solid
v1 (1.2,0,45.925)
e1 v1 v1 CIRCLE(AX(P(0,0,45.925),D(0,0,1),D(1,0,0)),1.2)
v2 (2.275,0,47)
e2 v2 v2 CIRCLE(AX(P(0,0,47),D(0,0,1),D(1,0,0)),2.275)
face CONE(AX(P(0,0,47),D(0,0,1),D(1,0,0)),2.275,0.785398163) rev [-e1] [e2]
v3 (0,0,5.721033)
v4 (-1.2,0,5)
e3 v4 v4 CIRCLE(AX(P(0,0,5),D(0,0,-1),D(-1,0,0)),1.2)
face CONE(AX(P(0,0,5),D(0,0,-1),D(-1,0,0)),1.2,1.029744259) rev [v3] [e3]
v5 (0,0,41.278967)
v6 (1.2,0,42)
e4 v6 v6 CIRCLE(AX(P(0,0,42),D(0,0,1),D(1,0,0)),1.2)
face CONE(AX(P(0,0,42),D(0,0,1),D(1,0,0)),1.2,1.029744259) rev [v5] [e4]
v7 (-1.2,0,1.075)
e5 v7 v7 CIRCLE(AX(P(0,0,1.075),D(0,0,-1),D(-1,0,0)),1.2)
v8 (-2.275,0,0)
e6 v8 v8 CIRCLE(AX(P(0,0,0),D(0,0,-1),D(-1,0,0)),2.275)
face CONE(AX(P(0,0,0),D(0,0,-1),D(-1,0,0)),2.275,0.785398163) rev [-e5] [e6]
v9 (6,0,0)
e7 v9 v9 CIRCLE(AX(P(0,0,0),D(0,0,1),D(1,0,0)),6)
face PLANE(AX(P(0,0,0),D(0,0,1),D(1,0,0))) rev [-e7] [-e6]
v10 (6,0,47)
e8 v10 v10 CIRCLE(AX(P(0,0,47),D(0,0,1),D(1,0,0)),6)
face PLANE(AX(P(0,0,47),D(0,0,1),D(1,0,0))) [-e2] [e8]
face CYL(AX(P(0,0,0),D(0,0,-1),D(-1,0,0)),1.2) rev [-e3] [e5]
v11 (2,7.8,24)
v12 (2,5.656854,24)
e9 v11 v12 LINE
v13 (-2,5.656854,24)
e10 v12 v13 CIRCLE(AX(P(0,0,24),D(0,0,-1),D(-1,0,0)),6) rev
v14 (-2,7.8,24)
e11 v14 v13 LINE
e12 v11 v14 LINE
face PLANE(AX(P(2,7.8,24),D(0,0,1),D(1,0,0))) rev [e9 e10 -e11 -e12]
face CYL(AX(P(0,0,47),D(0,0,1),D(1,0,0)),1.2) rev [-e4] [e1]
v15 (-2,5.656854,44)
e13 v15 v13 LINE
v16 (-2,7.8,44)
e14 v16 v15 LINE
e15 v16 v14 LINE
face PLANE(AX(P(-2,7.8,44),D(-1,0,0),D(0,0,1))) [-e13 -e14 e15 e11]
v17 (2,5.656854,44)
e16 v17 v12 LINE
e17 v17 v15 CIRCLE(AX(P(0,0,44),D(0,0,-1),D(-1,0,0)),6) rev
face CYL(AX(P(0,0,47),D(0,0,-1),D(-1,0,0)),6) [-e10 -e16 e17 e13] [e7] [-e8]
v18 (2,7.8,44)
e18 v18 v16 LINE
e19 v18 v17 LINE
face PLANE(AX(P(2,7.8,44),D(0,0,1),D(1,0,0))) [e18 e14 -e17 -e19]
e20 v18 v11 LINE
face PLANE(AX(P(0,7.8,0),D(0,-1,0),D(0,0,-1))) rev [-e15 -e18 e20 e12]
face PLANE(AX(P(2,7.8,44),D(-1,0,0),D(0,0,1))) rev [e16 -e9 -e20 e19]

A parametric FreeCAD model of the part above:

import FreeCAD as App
import Part
import Sketcher
Q = App.Units.Quantity


def add_polygon(sketch, points):
    """Adds a closed chain of lines whose ends are joined by coincident constraints."""
    first, n = sketch.GeometryCount, len(points)
    for a, b in zip(points, points[1:] + points[:1]):
        sketch.addGeometry(Part.LineSegment(App.Vector(*a, 0), App.Vector(*b, 0)), False)
    for i in range(n):
        sketch.addConstraint(Sketcher.Constraint("Coincident", first + i, 2, first + (i + 1) % n, 1))

doc = App.newDocument("Part")
body = doc.addObject("PartDesign::Body", "Body")

# Sketch on XY plane
sketch1 = body.newObject("Sketcher::SketchObject", "Sketch")
sketch1.AttachmentSupport = (doc.getObject("XY_Plane"), [""])
sketch1.MapMode = "FlatFace"
sketch1.addGeometry(Part.Circle(App.Vector(0, 0, 0), App.Vector(0, 0, 1), 6), False)
sketch1.addConstraint([
    Sketcher.Constraint("Coincident", 0, 3, -1, 1),
    Sketcher.Constraint("Diameter", 0, Q("12 mm")),
])
pad1 = body.newObject("PartDesign::Pad", "Pad")
pad1.Profile = sketch1
pad1.Length = 47

# Sketch on XZ plane
sketch2 = body.newObject("Sketcher::SketchObject", "Sketch001")
sketch2.AttachmentSupport = (doc.getObject("XZ_Plane"), [""])
sketch2.MapMode = "FlatFace"
sketch2.AttachmentOffset = App.Placement(App.Vector(0, 0, -6), App.Rotation())
add_polygon(sketch2, [(-2, 44), (2, 44), (2, 24), (-2, 24)])  # lines 0-3
sketch2.addConstraint([
    Sketcher.Constraint("Horizontal", 0),
    Sketcher.Constraint("Vertical", 1),
    Sketcher.Constraint("Horizontal", 2),
    Sketcher.Constraint("Vertical", 3),
    Sketcher.Constraint("DistanceX", 0, 1, 0, 2, Q("4 mm")),
    Sketcher.Constraint("DistanceY", 1, 2, 1, 1, Q("20 mm")),
    Sketcher.Constraint("DistanceX", -1, 1, 0, 2, Q("2 mm")),
    Sketcher.Constraint("DistanceY", -1, 1, 0, 2, Q("44 mm")),
])
pad2 = body.newObject("PartDesign::Pad", "Pad001")
pad2.Profile = sketch2
pad2.Type = "TwoLengths"
pad2.Length = 1.8
pad2.Length2 = 1.8
pad2.Reversed = True

# Sketch on XY plane
sketch3 = body.newObject("Sketcher::SketchObject", "Sketch002")
sketch3.AttachmentSupport = (doc.getObject("XY_Plane"), [""])
sketch3.MapMode = "FlatFace"
sketch3.AttachmentOffset = App.Placement(App.Vector(0, 0, 47), App.Rotation())
sketch3.addGeometry(Part.Circle(App.Vector(0, 0, 0), App.Vector(0, 0, 1), 1.2), False)
sketch3.addConstraint([
    Sketcher.Constraint("Coincident", 0, 3, -1, 1),
    Sketcher.Constraint("Diameter", 0, Q("2.4 mm")),
])
doc.recompute()
hole = body.newObject("PartDesign::Hole", "Hole")
hole.Profile = sketch3
hole.ThreadType = "None"
hole.Diameter = 2.4
hole.DepthType = "Dimension"
hole.Depth = 5
hole.DrillPoint = "Angled"
hole.DrillPointAngle = 118
hole.HoleCutType = "Countersink"
hole.HoleCutDiameter = 4.55
hole.HoleCutCountersinkAngle = 90

# Sketch on XY plane
sketch4 = body.newObject("Sketcher::SketchObject", "Sketch003")
sketch4.AttachmentSupport = (doc.getObject("XY_Plane"), [""])
sketch4.MapMode = "FlatFace"
sketch4.addGeometry(Part.Circle(App.Vector(0, 0, 0), App.Vector(0, 0, 1), 1.2), False)
sketch4.addConstraint([
    Sketcher.Constraint("Coincident", 0, 3, -1, 1),
    Sketcher.Constraint("Diameter", 0, Q("2.4 mm")),
])
doc.recompute()
hole2 = body.newObject("PartDesign::Hole", "Hole001")
hole2.Profile = sketch4
hole2.ThreadType = "None"
hole2.Diameter = 2.4
hole2.DepthType = "Dimension"
hole2.Depth = 5
hole2.DrillPoint = "Angled"
hole2.DrillPointAngle = 118
hole2.HoleCutType = "Countersink"
hole2.HoleCutDiameter = 4.55
hole2.HoleCutCountersinkAngle = 90
hole2.Reversed = True

doc.recompute()
